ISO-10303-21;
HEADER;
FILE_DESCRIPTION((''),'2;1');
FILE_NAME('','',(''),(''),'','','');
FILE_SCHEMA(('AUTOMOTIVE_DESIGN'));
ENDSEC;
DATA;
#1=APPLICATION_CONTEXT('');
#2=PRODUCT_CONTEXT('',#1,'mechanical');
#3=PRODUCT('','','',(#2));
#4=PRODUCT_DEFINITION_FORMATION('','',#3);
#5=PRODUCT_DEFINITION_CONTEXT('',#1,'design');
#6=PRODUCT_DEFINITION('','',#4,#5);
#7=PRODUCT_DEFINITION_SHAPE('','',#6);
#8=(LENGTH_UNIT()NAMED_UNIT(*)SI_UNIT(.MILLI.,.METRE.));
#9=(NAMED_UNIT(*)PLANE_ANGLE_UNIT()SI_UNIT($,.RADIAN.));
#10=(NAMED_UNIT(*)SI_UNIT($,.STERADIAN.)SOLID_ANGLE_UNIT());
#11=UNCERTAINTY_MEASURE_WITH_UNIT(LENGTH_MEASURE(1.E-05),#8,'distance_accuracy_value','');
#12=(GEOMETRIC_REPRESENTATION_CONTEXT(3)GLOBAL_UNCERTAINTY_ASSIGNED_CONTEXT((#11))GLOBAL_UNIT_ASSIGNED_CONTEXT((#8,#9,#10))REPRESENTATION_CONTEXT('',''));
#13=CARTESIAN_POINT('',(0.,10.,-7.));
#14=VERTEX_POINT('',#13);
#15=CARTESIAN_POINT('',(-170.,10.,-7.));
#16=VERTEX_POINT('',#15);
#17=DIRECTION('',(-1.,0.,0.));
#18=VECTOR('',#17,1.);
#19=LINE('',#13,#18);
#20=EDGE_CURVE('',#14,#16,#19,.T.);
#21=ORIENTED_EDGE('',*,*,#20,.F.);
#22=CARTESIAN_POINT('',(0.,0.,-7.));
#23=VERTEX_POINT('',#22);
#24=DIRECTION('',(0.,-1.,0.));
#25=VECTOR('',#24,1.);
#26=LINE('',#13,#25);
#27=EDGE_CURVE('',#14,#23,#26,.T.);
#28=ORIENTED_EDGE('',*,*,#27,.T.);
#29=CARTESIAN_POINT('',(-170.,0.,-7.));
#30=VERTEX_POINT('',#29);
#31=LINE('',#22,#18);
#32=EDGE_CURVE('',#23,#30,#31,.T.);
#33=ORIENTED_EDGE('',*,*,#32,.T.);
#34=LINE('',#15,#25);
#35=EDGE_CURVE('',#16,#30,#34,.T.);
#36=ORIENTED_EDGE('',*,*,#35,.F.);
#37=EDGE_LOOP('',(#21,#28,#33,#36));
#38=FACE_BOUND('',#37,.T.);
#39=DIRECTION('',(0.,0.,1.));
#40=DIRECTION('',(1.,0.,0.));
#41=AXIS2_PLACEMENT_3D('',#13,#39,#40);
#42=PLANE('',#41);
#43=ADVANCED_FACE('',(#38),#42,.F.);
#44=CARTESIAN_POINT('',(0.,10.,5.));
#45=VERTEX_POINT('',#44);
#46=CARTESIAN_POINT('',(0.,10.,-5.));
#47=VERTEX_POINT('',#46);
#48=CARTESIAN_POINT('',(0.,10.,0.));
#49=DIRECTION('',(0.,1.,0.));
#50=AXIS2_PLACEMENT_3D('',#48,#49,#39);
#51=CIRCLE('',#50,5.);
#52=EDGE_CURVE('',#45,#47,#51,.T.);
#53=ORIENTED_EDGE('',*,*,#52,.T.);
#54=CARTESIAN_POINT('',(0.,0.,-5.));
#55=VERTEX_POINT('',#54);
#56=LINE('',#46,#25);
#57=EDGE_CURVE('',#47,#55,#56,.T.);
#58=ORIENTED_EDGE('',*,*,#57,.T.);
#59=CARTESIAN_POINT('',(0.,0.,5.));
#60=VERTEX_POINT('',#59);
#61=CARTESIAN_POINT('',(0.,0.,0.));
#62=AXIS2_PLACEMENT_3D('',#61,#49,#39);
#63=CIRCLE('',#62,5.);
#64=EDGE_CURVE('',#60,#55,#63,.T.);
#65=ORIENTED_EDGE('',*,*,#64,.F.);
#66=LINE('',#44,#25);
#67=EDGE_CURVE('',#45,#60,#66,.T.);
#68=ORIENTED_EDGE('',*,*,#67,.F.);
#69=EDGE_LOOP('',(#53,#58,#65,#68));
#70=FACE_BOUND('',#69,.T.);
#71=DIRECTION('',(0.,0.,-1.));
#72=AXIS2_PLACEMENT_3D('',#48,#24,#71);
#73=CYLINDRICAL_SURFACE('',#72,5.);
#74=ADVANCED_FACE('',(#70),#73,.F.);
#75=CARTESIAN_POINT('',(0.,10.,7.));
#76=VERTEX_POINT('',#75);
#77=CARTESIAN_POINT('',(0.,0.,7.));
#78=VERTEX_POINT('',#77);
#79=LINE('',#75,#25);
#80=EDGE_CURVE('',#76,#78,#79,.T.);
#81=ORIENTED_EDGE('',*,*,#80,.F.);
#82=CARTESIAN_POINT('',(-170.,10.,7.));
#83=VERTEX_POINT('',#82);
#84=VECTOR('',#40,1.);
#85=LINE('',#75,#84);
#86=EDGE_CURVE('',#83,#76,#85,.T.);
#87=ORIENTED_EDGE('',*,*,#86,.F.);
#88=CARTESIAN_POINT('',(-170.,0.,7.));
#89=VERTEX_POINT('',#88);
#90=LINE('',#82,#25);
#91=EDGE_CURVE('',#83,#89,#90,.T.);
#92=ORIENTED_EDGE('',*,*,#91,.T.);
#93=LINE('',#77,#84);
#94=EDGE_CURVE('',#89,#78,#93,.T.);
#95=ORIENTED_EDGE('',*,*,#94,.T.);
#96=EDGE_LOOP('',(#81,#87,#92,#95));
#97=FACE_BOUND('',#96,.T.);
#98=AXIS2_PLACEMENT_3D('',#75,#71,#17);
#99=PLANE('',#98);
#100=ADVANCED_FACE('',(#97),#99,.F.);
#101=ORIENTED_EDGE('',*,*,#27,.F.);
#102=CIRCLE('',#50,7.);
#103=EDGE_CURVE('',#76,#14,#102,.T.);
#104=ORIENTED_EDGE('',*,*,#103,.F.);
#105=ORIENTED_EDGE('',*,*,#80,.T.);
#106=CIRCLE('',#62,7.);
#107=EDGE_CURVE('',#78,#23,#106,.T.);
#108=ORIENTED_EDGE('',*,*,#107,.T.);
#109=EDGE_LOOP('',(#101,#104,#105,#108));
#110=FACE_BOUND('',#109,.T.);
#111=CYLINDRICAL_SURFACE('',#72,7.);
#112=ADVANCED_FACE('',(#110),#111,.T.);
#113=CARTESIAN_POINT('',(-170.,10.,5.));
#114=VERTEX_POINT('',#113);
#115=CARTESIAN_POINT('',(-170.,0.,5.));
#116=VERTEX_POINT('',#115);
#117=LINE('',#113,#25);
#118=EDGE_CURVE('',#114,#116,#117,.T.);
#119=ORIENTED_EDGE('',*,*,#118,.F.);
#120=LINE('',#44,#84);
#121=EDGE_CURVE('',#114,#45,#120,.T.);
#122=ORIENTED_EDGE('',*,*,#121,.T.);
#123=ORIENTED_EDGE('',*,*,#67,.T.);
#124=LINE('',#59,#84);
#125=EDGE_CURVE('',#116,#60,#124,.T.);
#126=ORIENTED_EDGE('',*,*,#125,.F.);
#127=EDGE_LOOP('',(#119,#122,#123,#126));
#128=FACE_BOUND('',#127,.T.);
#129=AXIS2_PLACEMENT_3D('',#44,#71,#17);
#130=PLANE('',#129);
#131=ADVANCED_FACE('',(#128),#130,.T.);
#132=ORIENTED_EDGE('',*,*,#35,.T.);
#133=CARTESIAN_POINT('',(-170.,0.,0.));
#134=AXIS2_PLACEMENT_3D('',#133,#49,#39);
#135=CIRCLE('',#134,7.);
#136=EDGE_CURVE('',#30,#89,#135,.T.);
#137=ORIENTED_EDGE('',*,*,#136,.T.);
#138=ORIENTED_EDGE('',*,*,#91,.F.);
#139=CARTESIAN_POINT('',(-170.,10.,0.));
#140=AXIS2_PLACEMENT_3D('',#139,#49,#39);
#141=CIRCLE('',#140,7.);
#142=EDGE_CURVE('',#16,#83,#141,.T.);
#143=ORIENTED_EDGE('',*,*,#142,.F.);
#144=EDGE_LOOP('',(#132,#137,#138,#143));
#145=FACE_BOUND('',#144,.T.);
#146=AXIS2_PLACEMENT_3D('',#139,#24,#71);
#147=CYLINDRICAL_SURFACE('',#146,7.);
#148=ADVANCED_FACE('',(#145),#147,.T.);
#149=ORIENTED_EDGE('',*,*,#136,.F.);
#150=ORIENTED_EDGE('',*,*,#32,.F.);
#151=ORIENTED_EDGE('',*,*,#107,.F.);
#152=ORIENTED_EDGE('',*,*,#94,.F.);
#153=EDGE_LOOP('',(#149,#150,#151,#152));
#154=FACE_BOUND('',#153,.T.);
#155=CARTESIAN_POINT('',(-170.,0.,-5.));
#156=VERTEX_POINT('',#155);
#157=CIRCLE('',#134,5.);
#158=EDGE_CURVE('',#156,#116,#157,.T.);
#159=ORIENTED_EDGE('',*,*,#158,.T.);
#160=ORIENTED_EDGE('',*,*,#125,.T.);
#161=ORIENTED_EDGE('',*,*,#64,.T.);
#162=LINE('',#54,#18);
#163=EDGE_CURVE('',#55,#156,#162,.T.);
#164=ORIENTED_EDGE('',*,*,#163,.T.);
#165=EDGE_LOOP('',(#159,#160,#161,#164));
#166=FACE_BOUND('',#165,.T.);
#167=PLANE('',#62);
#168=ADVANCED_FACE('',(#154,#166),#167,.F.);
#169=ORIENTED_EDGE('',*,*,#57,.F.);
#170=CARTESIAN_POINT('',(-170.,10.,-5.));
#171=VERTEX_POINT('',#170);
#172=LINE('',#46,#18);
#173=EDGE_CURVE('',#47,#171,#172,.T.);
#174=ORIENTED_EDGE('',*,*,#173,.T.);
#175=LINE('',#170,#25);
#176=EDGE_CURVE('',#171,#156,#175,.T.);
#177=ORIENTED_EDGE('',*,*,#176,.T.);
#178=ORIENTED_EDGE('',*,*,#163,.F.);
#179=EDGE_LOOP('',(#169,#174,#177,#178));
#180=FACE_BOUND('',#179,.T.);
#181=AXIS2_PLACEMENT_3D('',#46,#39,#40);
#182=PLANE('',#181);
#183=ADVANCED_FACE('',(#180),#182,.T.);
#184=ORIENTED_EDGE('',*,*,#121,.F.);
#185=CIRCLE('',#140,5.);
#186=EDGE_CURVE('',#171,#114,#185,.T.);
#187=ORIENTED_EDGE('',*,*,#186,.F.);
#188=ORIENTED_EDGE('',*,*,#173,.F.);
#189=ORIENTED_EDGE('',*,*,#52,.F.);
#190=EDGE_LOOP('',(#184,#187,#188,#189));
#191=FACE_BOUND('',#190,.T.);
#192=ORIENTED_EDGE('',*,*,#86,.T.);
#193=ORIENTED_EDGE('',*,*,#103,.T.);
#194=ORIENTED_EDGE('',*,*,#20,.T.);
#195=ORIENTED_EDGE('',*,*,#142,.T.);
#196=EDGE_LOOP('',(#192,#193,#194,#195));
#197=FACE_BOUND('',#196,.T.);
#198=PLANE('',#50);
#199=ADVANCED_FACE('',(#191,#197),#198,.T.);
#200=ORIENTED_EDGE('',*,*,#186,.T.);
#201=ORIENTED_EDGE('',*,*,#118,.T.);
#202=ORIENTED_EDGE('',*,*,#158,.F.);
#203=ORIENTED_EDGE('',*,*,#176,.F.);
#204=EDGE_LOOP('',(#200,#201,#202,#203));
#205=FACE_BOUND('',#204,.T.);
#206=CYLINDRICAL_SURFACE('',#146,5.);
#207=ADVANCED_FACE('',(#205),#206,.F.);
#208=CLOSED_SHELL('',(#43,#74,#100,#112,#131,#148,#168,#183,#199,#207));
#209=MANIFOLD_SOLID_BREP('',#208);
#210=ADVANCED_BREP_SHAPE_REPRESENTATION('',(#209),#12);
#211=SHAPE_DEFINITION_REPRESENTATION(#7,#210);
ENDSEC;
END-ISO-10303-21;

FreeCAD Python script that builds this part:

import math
import FreeCAD as App
import Part
import Sketcher
from FreeCAD import Vector

doc = App.newDocument("Part")
body = doc.addObject("PartDesign::Body", "Body")

# Sketch on XZ plane
sketch1 = body.newObject("Sketcher::SketchObject", "Sketch")
sketch1.AttachmentSupport = (doc.getObject("XZ_Plane"), [""])
sketch1.MapMode = "FlatFace"
sketch1.addGeometry(Part.LineSegment(Vector(-170, 7, 0), Vector(0, 7, 0)), False)
sketch1.addGeometry(Part.ArcOfCircle(Part.Circle(Vector(0, 0, 0), Vector(0, 0, 1), 7), math.radians(-90), math.radians(90)), False)
sketch1.addGeometry(Part.LineSegment(Vector(0, -7, 0), Vector(-170, -7, 0)), False)
sketch1.addGeometry(Part.ArcOfCircle(Part.Circle(Vector(-170, 0, 0), Vector(0, 0, 1), 7), math.radians(90), math.radians(270)), False)
sketch1.addGeometry(Part.LineSegment(Vector(0, 5, 0), Vector(-170, 5, 0)), False)
sketch1.addGeometry(Part.ArcOfCircle(Part.Circle(Vector(-170, 0, 0), Vector(0, 0, 1), 5), math.radians(90), math.radians(270)), False)
sketch1.addGeometry(Part.LineSegment(Vector(-170, -5, 0), Vector(0, -5, 0)), False)
sketch1.addGeometry(Part.ArcOfCircle(Part.Circle(Vector(0, 0, 0), Vector(0, 0, 1), 5), math.radians(-90), math.radians(90)), False)
sketch1.addConstraint(Sketcher.Constraint("Tangent", 0, 2, 1, 2))
sketch1.addConstraint(Sketcher.Constraint("Tangent", 1, 1, 2, 1))
sketch1.addConstraint(Sketcher.Constraint("Tangent", 2, 2, 3, 2))
sketch1.addConstraint(Sketcher.Constraint("Tangent", 3, 1, 0, 1))
sketch1.addConstraint(Sketcher.Constraint("Tangent", 4, 2, 5, 1))
sketch1.addConstraint(Sketcher.Constraint("Tangent", 5, 2, 6, 1))
sketch1.addConstraint(Sketcher.Constraint("Tangent", 6, 2, 7, 1))
sketch1.addConstraint(Sketcher.Constraint("Tangent", 7, 2, 4, 1))
sketch1.addConstraint(Sketcher.Constraint("Horizontal", 0))
sketch1.addConstraint(Sketcher.Constraint("Horizontal", 2))
sketch1.addConstraint(Sketcher.Constraint("Horizontal", 4))
sketch1.addConstraint(Sketcher.Constraint("Horizontal", 6))
sketch1.addConstraint(Sketcher.Constraint("Coincident", 1, 3, -1, 1))
sketch1.addConstraint(Sketcher.Constraint("Coincident", 7, 3, -1, 1))
sketch1.addConstraint(Sketcher.Constraint("Vertical", 5, 3, 2, 2))
sketch1.addConstraint(Sketcher.Constraint("Radius", 1, 7.0))
sketch1.addConstraint(Sketcher.Constraint("Radius", 5, 5.0))
sketch1.addConstraint(Sketcher.Constraint("DistanceX", 0, 1, 0, 2, 170.0))
pad1 = body.newObject("PartDesign::Pad", "Pad")
pad1.Profile = sketch1
pad1.Length = 10
pad1.Reversed = True

doc.recompute()
